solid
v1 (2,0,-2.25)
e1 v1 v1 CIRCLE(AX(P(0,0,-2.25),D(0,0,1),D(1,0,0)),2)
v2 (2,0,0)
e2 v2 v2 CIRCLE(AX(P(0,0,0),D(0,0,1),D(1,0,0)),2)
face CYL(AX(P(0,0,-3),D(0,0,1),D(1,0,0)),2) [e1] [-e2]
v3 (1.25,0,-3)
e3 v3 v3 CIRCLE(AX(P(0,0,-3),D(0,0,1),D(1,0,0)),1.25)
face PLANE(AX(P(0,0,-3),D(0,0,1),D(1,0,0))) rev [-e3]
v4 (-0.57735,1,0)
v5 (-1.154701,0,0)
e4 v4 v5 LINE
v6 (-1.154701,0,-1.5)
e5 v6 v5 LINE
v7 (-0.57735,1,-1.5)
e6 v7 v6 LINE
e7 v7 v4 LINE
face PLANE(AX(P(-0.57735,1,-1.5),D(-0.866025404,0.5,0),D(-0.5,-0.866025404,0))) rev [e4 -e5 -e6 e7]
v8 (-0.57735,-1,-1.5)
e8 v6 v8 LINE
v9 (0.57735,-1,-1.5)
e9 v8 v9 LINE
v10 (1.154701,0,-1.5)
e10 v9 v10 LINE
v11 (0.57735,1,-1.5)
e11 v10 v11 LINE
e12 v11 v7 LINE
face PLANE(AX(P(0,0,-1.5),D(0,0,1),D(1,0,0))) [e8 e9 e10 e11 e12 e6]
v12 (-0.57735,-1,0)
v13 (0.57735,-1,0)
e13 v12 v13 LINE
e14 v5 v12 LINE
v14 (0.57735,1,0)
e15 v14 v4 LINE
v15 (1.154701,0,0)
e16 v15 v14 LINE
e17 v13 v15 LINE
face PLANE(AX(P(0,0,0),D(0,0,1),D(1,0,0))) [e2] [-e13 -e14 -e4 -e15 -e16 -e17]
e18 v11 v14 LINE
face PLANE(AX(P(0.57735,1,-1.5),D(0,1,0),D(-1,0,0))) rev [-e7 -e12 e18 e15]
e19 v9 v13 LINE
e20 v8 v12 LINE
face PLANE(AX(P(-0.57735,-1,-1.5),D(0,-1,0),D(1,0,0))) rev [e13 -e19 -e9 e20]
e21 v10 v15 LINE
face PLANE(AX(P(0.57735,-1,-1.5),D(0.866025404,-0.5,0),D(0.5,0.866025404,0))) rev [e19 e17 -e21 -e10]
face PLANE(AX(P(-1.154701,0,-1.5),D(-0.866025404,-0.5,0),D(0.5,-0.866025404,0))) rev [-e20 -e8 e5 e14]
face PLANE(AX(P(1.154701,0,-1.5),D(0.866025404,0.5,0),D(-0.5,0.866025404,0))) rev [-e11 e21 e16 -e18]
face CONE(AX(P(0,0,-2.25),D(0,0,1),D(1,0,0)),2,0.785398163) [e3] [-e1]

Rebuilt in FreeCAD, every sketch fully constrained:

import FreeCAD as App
import Part
import Sketcher
Q = App.Units.Quantity


def add_polygon(sketch, points):
    """Adds a closed chain of lines whose ends are joined by coincident constraints."""
    first, n = sketch.GeometryCount, len(points)
    for a, b in zip(points, points[1:] + points[:1]):
        sketch.addGeometry(Part.LineSegment(App.Vector(*a, 0), App.Vector(*b, 0)), False)
    for i in range(n):
        sketch.addConstraint(Sketcher.Constraint("Coincident", first + i, 2, first + (i + 1) % n, 1))

doc = App.newDocument("Part")
body = doc.addObject("PartDesign::Body", "Body")

# Sketch on XY plane
sketch1 = body.newObject("Sketcher::SketchObject", "Sketch")
sketch1.AttachmentSupport = (doc.getObject("XY_Plane"), [""])
sketch1.MapMode = "FlatFace"
sketch1.addGeometry(Part.Circle(App.Vector(0, 0, 0), App.Vector(0, 0, 1), 2), False)
sketch1.addConstraint([
    Sketcher.Constraint("Coincident", 0, 3, -1, 1),
    Sketcher.Constraint("Diameter", 0, 4.0),
])
pad1 = body.newObject("PartDesign::Pad", "Pad")
pad1.Profile = sketch1
pad1.Length = 3
pad1.Reversed = True

# Sketch on XY plane
sketch2 = body.newObject("Sketcher::SketchObject", "Sketch001")
sketch2.AttachmentSupport = (doc.getObject("XY_Plane"), [""])
sketch2.MapMode = "FlatFace"
add_polygon(sketch2, [(1.2, 0), (0.6, 1), (-0.6, 1), (-1.2, 0), (-0.6, -1), (0.6, -1)])  # lines 0-5
sketch2.addConstraint([
    Sketcher.Constraint("Horizontal", 1),
    Sketcher.Constraint("Horizontal", 4),
    Sketcher.Constraint("Symmetric", 0, 2, 3, 2, -1, 1),
    Sketcher.Constraint("Symmetric", 2, 2, 5, 2, -1, 1),
    Sketcher.Constraint("PointOnObject", 2, 2, -1),
    Sketcher.Constraint("Parallel", 2, 5),
    Sketcher.Constraint("Vertical", 1, 2, 3, 2),
    Sketcher.Constraint("Angle", 0, Q("120 deg")),
    Sketcher.Constraint("DistanceY", -1, 1, 0, 2, 1.0),
    Sketcher.Constraint("DistanceX", 1, 2, 1, 1, 1.154701),
])
pocket1 = body.newObject("PartDesign::Pocket", "Pocket")
pocket1.Profile = sketch2
pocket1.Length = 1.5

# Sketch on YZ plane
sketch3 = body.newObject("Sketcher::SketchObject", "Sketch002")
sketch3.AttachmentSupport = (doc.getObject("YZ_Plane"), [""])
sketch3.MapMode = "FlatFace"
add_polygon(sketch3, [(1.2, -3), (2, -3), (2, -2.2)])  # lines 0-2
sketch3.addConstraint([
    Sketcher.Constraint("Horizontal", 0),
    Sketcher.Constraint("Vertical", 1),
    Sketcher.Constraint("Equal", 0, 1),
    Sketcher.Constraint("DistanceX", -1, 1, 0, 2, 2.0),
    Sketcher.Constraint("DistanceY", 0, 2, -1, 1, 3.0),
    Sketcher.Constraint("DistanceX", 0, 1, 0, 2, 0.75),
])
groove = body.newObject("PartDesign::Groove", "Groove")
groove.Profile = sketch3
groove.ReferenceAxis = (sketch3, ["V_Axis"])
groove.Angle = 360

doc.recompute()
